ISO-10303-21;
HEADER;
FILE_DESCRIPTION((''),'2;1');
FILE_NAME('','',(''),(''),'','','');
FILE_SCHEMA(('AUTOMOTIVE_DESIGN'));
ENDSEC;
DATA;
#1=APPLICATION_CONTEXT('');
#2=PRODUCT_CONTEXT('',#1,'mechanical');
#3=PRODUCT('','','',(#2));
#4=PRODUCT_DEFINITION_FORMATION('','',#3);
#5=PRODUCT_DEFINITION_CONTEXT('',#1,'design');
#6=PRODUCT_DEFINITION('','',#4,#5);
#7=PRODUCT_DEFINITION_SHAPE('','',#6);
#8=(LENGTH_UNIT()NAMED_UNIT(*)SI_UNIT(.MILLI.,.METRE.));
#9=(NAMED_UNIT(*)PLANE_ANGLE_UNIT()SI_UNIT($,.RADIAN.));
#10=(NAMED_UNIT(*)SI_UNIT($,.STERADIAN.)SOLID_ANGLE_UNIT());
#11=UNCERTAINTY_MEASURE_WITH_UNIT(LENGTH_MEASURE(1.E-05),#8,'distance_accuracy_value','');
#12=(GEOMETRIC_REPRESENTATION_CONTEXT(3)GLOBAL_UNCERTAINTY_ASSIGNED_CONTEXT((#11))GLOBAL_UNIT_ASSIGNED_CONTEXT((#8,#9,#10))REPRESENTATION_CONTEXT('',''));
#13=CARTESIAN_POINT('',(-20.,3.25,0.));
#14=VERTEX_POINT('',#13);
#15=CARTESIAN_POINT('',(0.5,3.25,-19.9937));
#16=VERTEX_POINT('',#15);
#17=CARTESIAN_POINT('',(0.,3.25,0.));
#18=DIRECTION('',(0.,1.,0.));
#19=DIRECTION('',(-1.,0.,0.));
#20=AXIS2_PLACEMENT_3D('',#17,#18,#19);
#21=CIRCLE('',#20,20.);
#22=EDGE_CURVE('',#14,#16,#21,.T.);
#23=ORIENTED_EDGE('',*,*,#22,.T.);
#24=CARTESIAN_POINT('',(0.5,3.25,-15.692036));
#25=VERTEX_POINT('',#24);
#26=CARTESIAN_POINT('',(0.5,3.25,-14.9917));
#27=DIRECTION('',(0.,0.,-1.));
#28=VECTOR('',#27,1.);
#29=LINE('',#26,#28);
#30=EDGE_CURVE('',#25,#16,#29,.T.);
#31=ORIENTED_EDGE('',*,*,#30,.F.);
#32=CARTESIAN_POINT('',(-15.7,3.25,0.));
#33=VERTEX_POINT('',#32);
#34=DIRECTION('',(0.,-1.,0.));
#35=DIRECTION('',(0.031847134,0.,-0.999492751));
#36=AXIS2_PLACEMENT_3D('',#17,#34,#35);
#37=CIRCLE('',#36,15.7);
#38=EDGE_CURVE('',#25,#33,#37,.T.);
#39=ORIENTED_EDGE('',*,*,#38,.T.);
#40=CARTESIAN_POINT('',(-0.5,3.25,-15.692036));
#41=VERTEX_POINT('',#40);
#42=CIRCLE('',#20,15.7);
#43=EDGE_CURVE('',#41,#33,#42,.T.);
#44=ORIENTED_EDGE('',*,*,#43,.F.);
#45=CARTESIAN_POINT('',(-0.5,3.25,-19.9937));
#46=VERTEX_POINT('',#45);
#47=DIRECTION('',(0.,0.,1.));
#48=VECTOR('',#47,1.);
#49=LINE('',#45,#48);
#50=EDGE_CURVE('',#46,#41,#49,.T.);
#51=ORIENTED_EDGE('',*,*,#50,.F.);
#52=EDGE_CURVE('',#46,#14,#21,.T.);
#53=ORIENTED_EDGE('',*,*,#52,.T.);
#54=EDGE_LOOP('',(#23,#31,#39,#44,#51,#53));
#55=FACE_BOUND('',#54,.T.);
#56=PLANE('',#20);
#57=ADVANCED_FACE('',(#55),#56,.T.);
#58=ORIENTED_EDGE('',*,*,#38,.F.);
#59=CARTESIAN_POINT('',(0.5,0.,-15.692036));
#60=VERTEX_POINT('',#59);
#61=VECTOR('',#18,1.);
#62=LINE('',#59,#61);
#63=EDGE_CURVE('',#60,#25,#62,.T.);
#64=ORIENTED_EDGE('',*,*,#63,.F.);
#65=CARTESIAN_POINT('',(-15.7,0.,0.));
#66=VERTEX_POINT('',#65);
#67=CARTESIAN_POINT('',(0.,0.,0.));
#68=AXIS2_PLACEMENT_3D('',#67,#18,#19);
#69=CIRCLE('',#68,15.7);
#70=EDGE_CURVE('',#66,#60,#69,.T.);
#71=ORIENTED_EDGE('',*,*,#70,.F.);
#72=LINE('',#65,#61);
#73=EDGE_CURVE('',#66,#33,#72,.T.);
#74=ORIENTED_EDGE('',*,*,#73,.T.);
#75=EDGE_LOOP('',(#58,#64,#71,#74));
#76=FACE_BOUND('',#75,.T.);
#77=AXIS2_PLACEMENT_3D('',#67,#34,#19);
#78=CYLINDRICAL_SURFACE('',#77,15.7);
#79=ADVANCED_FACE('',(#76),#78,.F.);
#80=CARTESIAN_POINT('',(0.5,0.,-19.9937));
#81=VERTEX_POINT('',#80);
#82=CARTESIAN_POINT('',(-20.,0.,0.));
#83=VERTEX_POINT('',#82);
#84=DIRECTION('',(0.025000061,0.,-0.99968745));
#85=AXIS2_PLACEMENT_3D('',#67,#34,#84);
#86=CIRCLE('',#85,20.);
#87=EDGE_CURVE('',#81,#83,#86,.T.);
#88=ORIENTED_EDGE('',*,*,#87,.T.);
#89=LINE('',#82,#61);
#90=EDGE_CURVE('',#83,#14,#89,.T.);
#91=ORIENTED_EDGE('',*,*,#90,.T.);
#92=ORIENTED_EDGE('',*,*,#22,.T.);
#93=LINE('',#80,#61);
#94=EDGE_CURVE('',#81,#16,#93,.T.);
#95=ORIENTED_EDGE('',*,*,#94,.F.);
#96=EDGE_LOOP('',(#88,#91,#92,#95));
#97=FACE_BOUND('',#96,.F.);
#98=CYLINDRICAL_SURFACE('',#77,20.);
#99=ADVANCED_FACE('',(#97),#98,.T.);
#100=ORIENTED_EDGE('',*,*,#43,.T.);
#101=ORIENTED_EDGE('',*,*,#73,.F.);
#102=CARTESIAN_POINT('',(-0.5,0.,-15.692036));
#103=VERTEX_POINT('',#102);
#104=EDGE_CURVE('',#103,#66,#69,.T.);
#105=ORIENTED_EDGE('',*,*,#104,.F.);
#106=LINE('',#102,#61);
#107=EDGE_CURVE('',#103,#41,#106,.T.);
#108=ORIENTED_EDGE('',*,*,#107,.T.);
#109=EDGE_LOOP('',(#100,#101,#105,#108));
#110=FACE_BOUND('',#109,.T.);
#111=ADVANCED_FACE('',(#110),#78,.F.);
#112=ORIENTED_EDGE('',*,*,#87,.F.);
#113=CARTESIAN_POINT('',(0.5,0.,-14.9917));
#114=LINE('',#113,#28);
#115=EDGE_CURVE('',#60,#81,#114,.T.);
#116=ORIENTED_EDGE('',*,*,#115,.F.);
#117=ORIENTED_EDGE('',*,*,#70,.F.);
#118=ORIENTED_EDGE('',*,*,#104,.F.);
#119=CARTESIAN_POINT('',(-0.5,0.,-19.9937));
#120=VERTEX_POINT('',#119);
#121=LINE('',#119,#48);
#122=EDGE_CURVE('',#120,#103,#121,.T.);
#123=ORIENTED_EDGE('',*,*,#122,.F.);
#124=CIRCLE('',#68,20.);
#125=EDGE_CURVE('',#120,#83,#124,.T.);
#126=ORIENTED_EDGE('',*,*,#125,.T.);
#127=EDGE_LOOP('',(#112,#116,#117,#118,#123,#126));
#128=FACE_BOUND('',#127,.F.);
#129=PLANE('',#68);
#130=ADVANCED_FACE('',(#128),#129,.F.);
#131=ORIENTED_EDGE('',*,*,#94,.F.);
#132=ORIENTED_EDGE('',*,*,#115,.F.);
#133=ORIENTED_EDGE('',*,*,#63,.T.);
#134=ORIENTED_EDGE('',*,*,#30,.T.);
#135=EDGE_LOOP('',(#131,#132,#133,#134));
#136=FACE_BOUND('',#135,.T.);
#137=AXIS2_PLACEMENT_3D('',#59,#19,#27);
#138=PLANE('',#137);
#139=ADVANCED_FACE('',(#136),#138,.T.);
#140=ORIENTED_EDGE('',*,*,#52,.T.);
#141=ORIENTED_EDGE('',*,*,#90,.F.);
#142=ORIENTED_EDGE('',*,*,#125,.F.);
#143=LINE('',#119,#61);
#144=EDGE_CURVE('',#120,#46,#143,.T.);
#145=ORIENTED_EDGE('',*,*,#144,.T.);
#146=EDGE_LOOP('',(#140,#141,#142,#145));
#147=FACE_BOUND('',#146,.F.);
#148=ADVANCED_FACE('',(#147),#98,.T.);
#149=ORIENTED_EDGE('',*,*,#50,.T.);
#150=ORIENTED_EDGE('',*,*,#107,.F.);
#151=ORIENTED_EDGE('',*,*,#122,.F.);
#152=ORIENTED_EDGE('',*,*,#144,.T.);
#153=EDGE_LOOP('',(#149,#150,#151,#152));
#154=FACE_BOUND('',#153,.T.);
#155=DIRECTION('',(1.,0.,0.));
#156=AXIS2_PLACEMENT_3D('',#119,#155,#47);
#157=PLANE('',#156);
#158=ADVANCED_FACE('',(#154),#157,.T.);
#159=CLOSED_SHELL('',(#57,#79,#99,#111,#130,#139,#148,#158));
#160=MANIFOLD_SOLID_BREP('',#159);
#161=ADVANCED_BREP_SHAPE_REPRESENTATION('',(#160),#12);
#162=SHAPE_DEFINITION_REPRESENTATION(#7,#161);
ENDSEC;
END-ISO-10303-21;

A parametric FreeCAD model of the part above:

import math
import FreeCAD as App
import Part
import Sketcher
from FreeCAD import Vector
Q = App.Units.Quantity

doc = App.newDocument("Part")
params = doc.addObject("Spreadsheet::Sheet", "Params")
for row, (alias, value) in enumerate([
    ("sketch1_radius", "20 mm"),
    ("sketch1_radius2", "15.7 mm"),
    ("pad1_length", "3.25 mm"),
], start=1):
    params.set(f"A{row}", alias)
    params.set(f"B{row}", "=" + value)
    params.setAlias(f"B{row}", alias)

body = doc.addObject("PartDesign::Body", "Body")

# Sketch on XZ plane
sketch1 = body.newObject("Sketcher::SketchObject", "Sketch")
sketch1.AttachmentSupport = (doc.getObject("XZ_Plane"), [""])
sketch1.MapMode = "FlatFace"
sketch1.addGeometry([
    Part.LineSegment(Vector(-0.5, -15.7, 0), Vector(-0.5, -20, 0)),
    Part.ArcOfCircle(Part.Circle(Vector(0, 0, 0), Vector(0, 0, 1), 20), math.radians(-89), math.radians(269)),
    Part.LineSegment(Vector(0.5, -20, 0), Vector(0.5, -15.7, 0)),
    Part.ArcOfCircle(Part.Circle(Vector(0, 0, 0), Vector(0, 0, 1), 15.7), math.radians(-88), math.radians(268)),
], False)
sketch1.addConstraint([
    Sketcher.Constraint("Coincident", 0, 2, 1, 2),
    Sketcher.Constraint("Coincident", 1, 1, 2, 1),
    Sketcher.Constraint("Coincident", 2, 2, 3, 1),
    Sketcher.Constraint("Coincident", 3, 2, 0, 1),
    Sketcher.Constraint("Vertical", 0),
    Sketcher.Constraint("Vertical", 2),
    Sketcher.Constraint("Coincident", 1, 3, -1, 1),
    Sketcher.Constraint("Coincident", 3, 3, -1, 1),
    Sketcher.Constraint("Horizontal", 0, 2, 1, 1),
    Sketcher.Constraint("Radius", 1, Q("20 mm")),
    Sketcher.Constraint("DistanceX", 0, 2, 1, 1, Q("1 mm")),
    Sketcher.Constraint("Radius", 3, Q("15.7 mm")),
])
sketch1.setExpression("Constraints[9]", "Params.sketch1_radius")
sketch1.setExpression("Constraints[11]", "Params.sketch1_radius2")
pad1 = body.newObject("PartDesign::Pad", "Pad")
pad1.Profile = sketch1
pad1.setExpression("Length", "Params.pad1_length")
pad1.Reversed = True

doc.recompute()
